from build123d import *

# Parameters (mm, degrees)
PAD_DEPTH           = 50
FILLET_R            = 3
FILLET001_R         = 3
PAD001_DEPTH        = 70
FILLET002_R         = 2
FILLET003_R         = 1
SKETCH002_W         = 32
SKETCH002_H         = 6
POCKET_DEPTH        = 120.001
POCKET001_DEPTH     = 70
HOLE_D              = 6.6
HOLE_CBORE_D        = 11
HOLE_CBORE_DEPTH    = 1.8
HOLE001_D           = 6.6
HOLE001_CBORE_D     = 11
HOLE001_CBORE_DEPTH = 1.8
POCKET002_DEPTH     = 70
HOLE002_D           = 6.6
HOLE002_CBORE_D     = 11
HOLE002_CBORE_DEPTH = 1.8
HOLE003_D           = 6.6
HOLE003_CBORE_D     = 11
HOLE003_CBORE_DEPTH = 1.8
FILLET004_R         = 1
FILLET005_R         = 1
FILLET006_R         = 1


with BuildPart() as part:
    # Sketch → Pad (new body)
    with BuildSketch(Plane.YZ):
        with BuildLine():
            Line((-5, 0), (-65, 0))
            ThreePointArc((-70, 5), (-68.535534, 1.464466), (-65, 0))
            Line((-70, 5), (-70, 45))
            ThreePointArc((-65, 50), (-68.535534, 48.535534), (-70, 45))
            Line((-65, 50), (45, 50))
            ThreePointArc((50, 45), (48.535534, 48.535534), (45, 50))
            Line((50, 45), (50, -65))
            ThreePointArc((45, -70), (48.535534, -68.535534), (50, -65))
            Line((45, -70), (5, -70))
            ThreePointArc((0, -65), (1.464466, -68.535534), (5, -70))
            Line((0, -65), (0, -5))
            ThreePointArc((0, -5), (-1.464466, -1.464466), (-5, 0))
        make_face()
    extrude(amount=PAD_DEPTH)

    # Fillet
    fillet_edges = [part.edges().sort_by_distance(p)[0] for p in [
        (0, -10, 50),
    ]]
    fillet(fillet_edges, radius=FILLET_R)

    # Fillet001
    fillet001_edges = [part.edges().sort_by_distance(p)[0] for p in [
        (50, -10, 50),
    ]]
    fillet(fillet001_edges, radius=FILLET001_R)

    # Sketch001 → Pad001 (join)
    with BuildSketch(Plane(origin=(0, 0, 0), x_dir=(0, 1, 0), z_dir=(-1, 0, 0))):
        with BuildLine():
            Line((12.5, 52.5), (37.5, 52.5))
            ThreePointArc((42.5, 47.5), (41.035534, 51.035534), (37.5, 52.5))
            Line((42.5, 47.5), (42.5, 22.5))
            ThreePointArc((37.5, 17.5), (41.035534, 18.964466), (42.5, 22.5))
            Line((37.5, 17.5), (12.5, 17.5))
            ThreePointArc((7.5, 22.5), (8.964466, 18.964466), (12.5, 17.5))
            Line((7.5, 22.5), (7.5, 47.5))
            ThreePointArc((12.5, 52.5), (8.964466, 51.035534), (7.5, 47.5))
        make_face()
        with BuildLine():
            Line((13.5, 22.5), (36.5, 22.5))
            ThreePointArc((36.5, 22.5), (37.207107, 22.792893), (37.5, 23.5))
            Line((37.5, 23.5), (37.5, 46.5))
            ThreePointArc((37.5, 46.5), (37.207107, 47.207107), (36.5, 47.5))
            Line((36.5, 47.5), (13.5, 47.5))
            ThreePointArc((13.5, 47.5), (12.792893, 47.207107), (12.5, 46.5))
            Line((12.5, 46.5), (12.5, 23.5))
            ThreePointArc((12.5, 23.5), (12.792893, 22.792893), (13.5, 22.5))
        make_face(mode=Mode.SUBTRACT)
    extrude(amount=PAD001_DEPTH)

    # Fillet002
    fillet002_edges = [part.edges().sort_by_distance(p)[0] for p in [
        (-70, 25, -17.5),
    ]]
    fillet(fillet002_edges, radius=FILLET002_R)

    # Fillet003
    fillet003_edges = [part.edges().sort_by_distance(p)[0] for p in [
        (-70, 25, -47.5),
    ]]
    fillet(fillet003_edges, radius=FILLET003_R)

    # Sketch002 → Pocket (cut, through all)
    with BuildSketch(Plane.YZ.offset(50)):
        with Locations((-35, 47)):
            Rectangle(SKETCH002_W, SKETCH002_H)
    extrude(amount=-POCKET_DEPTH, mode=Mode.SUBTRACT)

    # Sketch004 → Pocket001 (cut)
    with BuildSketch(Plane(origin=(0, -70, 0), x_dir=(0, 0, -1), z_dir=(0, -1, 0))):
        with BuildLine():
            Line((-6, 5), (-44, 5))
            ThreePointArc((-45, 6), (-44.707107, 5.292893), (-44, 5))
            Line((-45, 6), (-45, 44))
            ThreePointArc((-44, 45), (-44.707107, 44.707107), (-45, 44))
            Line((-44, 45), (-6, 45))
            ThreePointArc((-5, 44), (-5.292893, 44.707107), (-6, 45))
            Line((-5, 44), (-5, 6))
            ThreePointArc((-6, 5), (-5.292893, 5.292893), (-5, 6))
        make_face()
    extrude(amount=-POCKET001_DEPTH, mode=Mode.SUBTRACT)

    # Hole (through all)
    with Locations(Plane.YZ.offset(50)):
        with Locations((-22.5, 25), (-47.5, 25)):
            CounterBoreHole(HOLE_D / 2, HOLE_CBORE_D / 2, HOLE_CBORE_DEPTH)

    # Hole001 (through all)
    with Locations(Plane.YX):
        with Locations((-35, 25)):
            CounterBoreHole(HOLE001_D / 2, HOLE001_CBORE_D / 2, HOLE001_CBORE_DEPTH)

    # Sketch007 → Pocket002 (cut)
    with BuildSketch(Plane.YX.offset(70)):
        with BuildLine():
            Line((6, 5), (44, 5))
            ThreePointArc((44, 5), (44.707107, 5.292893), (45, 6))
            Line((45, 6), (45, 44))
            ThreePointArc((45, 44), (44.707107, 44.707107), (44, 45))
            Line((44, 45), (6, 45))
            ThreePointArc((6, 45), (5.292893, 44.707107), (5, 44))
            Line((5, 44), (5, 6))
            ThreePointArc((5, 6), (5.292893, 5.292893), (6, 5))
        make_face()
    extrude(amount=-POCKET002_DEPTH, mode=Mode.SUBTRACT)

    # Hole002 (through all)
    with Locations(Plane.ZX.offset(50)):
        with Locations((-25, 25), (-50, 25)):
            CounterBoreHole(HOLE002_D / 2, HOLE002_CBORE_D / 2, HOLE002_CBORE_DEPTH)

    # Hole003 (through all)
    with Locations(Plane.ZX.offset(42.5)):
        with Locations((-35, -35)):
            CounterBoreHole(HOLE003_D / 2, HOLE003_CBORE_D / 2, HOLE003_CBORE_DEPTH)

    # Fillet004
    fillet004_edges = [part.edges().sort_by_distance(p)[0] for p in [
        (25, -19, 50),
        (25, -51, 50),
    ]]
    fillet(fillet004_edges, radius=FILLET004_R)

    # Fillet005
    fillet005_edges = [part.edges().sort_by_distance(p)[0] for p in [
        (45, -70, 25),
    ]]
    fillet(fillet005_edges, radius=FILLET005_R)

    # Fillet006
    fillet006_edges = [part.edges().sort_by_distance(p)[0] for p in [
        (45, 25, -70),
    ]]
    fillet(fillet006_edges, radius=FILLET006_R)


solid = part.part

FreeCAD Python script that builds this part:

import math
import FreeCAD as App
import Part
import Sketcher


def edges_at(feature, points):
    """Names of the edges that pass closest to the given points."""
    edges = feature.Shape.Edges
    near = lambda p: min(range(len(edges)), key=lambda i: edges[i].distToShape(Part.Vertex(*p))[0])
    return sorted({f"Edge{near(p) + 1}" for p in points})

doc = App.newDocument("Part")
body = doc.addObject("PartDesign::Body", "Body")

# Sketch on YZ plane
sketch1 = body.newObject("Sketcher::SketchObject", "Sketch")
sketch1.AttachmentSupport = (doc.getObject("YZ_Plane"), [""])
sketch1.MapMode = "FlatFace"
sketch1.addGeometry([
    Part.LineSegment(App.Vector(-65, 0, 0), App.Vector(-5, 0, 0)),  # 0
    Part.ArcOfCircle(Part.Circle(App.Vector(-5, -5, 0), App.Vector(0, 0, 1), 5), math.radians(0), math.radians(90)),  # 1
    Part.LineSegment(App.Vector(0, -5, 0), App.Vector(0, -65, 0)),  # 2
    Part.ArcOfCircle(Part.Circle(App.Vector(5, -65, 0), App.Vector(0, 0, 1), 5), math.radians(180), math.radians(270)),  # 3
    Part.LineSegment(App.Vector(5, -70, 0), App.Vector(45, -70, 0)),  # 4
    Part.ArcOfCircle(Part.Circle(App.Vector(45, -65, 0), App.Vector(0, 0, 1), 5), math.radians(-90), math.radians(0)),  # 5
    Part.LineSegment(App.Vector(50, -65, 0), App.Vector(50, 45, 0)),  # 6
    Part.ArcOfCircle(Part.Circle(App.Vector(45, 45, 0), App.Vector(0, 0, 1), 5), math.radians(0), math.radians(90)),  # 7
    Part.LineSegment(App.Vector(45, 50, 0), App.Vector(-65, 50, 0)),  # 8
    Part.ArcOfCircle(Part.Circle(App.Vector(-65, 45, 0), App.Vector(0, 0, 1), 5), math.radians(90), math.radians(180)),  # 9
    Part.LineSegment(App.Vector(-70, 45, 0), App.Vector(-70, 5, 0)),  # 10
    Part.ArcOfCircle(Part.Circle(App.Vector(-65, 5, 0), App.Vector(0, 0, 1), 5), math.radians(180), math.radians(270)),  # 11
], False)
sketch1.addConstraint([
    Sketcher.Constraint("Tangent", 0, 2, 1, 2),
    Sketcher.Constraint("Tangent", 1, 1, 2, 1),
    Sketcher.Constraint("Tangent", 2, 2, 3, 1),
    Sketcher.Constraint("Tangent", 3, 2, 4, 1),
    Sketcher.Constraint("Tangent", 4, 2, 5, 1),
    Sketcher.Constraint("Tangent", 5, 2, 6, 1),
    Sketcher.Constraint("Tangent", 6, 2, 7, 1),
    Sketcher.Constraint("Tangent", 7, 2, 8, 1),
    Sketcher.Constraint("Tangent", 8, 2, 9, 1),
    Sketcher.Constraint("Tangent", 9, 2, 10, 1),
    Sketcher.Constraint("Tangent", 10, 2, 11, 1),
    Sketcher.Constraint("Tangent", 11, 2, 0, 1),
    Sketcher.Constraint("Horizontal", 0),
    Sketcher.Constraint("Vertical", 2),
    Sketcher.Constraint("Horizontal", 4),
    Sketcher.Constraint("Vertical", 6),
    Sketcher.Constraint("Horizontal", 8),
    Sketcher.Constraint("Vertical", 10),
    Sketcher.Constraint("Equal", 1, 3),
    Sketcher.Constraint("Equal", 3, 5),
    Sketcher.Constraint("Equal", 5, 7),
    Sketcher.Constraint("Equal", 7, 9),
    Sketcher.Constraint("Equal", 9, 11),
    Sketcher.Constraint("PointOnObject", 0, 2, -1),
    Sketcher.Constraint("PointOnObject", 1, 1, -2),
    Sketcher.Constraint("Equal", 0, 2),
    Sketcher.Constraint("Equal", 8, 6),
    Sketcher.Constraint("Radius", 1, 5.0),
    Sketcher.Constraint("DistanceX", 0, 1, 0, 2, 60.0),
    Sketcher.Constraint("DistanceX", 4, 1, 4, 2, 40.0),
])
pad1 = body.newObject("PartDesign::Pad", "Pad")
pad1.Profile = sketch1
pad1.Length = 50
doc.recompute()

fillet = body.newObject("PartDesign::Fillet", "Fillet")
fillet.Base = (pad1, edges_at(pad1, [(0, -10, 50)]))
fillet.Radius = 3
doc.recompute()

fillet2 = body.newObject("PartDesign::Fillet", "Fillet001")
fillet2.Base = (fillet, edges_at(fillet, [(50, -10, 50)]))
fillet2.Radius = 3

# Sketch on YZ plane
sketch2 = body.newObject("Sketcher::SketchObject", "Sketch001")
sketch2.AttachmentSupport = (doc.getObject("YZ_Plane"), [""])
sketch2.MapMode = "FlatFace"
sketch2.addGeometry([
    Part.LineSegment(App.Vector(37.5, -52.5, 0), App.Vector(12.5, -52.5, 0)),  # 0
    Part.ArcOfCircle(Part.Circle(App.Vector(12.5, -47.5, 0), App.Vector(0, 0, 1), 5), math.radians(180), math.radians(270)),  # 1
    Part.LineSegment(App.Vector(7.5, -47.5, 0), App.Vector(7.5, -22.5, 0)),  # 2
    Part.ArcOfCircle(Part.Circle(App.Vector(12.5, -22.5, 0), App.Vector(0, 0, 1), 5), math.radians(90), math.radians(180)),  # 3
    Part.LineSegment(App.Vector(12.5, -17.5, 0), App.Vector(37.5, -17.5, 0)),  # 4
    Part.ArcOfCircle(Part.Circle(App.Vector(37.5, -22.5, 0), App.Vector(0, 0, 1), 5), math.radians(0), math.radians(90)),  # 5
    Part.LineSegment(App.Vector(42.5, -22.5, 0), App.Vector(42.5, -47.5, 0)),  # 6
    Part.ArcOfCircle(Part.Circle(App.Vector(37.5, -47.5, 0), App.Vector(0, 0, 1), 5), math.radians(-90), math.radians(0)),  # 7
    Part.ArcOfCircle(Part.Circle(App.Vector(13.5, -23.5, 0), App.Vector(0, 0, 1), 1), math.radians(90), math.radians(180)),  # 8
    Part.LineSegment(App.Vector(12.5, -23.5, 0), App.Vector(12.5, -46.5, 0)),  # 9
    Part.ArcOfCircle(Part.Circle(App.Vector(13.5, -46.5, 0), App.Vector(0, 0, 1), 1), math.radians(180), math.radians(270)),  # 10
    Part.LineSegment(App.Vector(13.5, -47.5, 0), App.Vector(36.5, -47.5, 0)),  # 11
    Part.ArcOfCircle(Part.Circle(App.Vector(36.5, -46.5, 0), App.Vector(0, 0, 1), 1), math.radians(-90), math.radians(0)),  # 12
    Part.LineSegment(App.Vector(37.5, -46.5, 0), App.Vector(37.5, -23.5, 0)),  # 13
    Part.ArcOfCircle(Part.Circle(App.Vector(36.5, -23.5, 0), App.Vector(0, 0, 1), 1), math.radians(0), math.radians(90)),  # 14
    Part.LineSegment(App.Vector(36.5, -22.5, 0), App.Vector(13.5, -22.5, 0)),  # 15
], False)
sketch2.addConstraint([
    Sketcher.Constraint("Tangent", 0, 2, 1, 2),
    Sketcher.Constraint("Tangent", 1, 1, 2, 1),
    Sketcher.Constraint("Tangent", 2, 2, 3, 2),
    Sketcher.Constraint("Tangent", 3, 1, 4, 1),
    Sketcher.Constraint("Tangent", 4, 2, 5, 2),
    Sketcher.Constraint("Tangent", 5, 1, 6, 1),
    Sketcher.Constraint("Tangent", 6, 2, 7, 2),
    Sketcher.Constraint("Tangent", 7, 1, 0, 1),
    Sketcher.Constraint("Tangent", 8, 2, 9, 1),
    Sketcher.Constraint("Tangent", 9, 2, 10, 1),
    Sketcher.Constraint("Tangent", 10, 2, 11, 1),
    Sketcher.Constraint("Tangent", 11, 2, 12, 1),
    Sketcher.Constraint("Tangent", 12, 2, 13, 1),
    Sketcher.Constraint("Tangent", 13, 2, 14, 1),
    Sketcher.Constraint("Tangent", 14, 2, 15, 1),
    Sketcher.Constraint("Tangent", 15, 2, 8, 1),
    Sketcher.Constraint("Horizontal", 0),
    Sketcher.Constraint("Vertical", 2),
    Sketcher.Constraint("Horizontal", 4),
    Sketcher.Constraint("Vertical", 6),
    Sketcher.Constraint("Vertical", 9),
    Sketcher.Constraint("Horizontal", 11),
    Sketcher.Constraint("Vertical", 13),
    Sketcher.Constraint("Horizontal", 15),
    Sketcher.Constraint("Equal", 1, 3),
    Sketcher.Constraint("Equal", 3, 5),
    Sketcher.Constraint("Equal", 5, 7),
    Sketcher.Constraint("Equal", 8, 10),
    Sketcher.Constraint("Equal", 10, 12),
    Sketcher.Constraint("Equal", 12, 14),
    Sketcher.Constraint("Horizontal", 6, 2, 10, 2),
    Sketcher.Constraint("Horizontal", 5, 1, 14, 2),
    Sketcher.Constraint("Vertical", 3, 1, 8, 2),
    Sketcher.Constraint("Vertical", 7, 1, 12, 2),
    Sketcher.Constraint("Equal", 4, 2),
    Sketcher.Constraint("Radius", 1, 5.0),
    Sketcher.Constraint("Radius", 8, 0.999999),
    Sketcher.Constraint("DistanceX", 0, 2, 0, 1, 25.0),
    Sketcher.Constraint("DistanceX", -1, 1, 1, 3, 12.5),
    Sketcher.Constraint("DistanceY", 1, 3, -1, 1, 47.5),
])
pad2 = body.newObject("PartDesign::Pad", "Pad001")
pad2.Profile = sketch2
pad2.Length = 70
pad2.Reversed = True
doc.recompute()

fillet3 = body.newObject("PartDesign::Fillet", "Fillet002")
fillet3.Base = (pad2, edges_at(pad2, [(-70, 25, -17.5)]))
fillet3.Radius = 2
doc.recompute()

fillet4 = body.newObject("PartDesign::Fillet", "Fillet003")
fillet4.Base = (fillet3, edges_at(fillet3, [(-70, 25, -47.5)]))
fillet4.Radius = 1

# Sketch on YZ plane
sketch3 = body.newObject("Sketcher::SketchObject", "Sketch002")
sketch3.AttachmentSupport = (doc.getObject("YZ_Plane"), [""])
sketch3.MapMode = "FlatFace"
sketch3.AttachmentOffset = App.Placement(App.Vector(0, 0, 50), App.Rotation())
sketch3.addGeometry([
    Part.LineSegment(App.Vector(-51, 50, 0), App.Vector(-51, 44, 0)),
    Part.LineSegment(App.Vector(-51, 44, 0), App.Vector(-19, 44, 0)),
    Part.LineSegment(App.Vector(-19, 44, 0), App.Vector(-19, 50, 0)),
    Part.LineSegment(App.Vector(-19, 50, 0), App.Vector(-51, 50, 0)),
], False)
sketch3.addConstraint([
    Sketcher.Constraint("Coincident", 0, 2, 1, 1),
    Sketcher.Constraint("Coincident", 1, 2, 2, 1),
    Sketcher.Constraint("Coincident", 2, 2, 3, 1),
    Sketcher.Constraint("Coincident", 3, 2, 0, 1),
    Sketcher.Constraint("Vertical", 0),
    Sketcher.Constraint("Horizontal", 1),
    Sketcher.Constraint("Vertical", 2),
    Sketcher.Constraint("Horizontal", 3),
    Sketcher.Constraint("DistanceX", 1, 1, 1, 2, 32.0),
    Sketcher.Constraint("DistanceY", 0, 2, 0, 1, 6.0),
    Sketcher.Constraint("DistanceX", 0, 2, -1, 1, 51.0),
    Sketcher.Constraint("DistanceY", -1, 1, 0, 2, 44.0),
])
pocket1 = body.newObject("PartDesign::Pocket", "Pocket")
pocket1.Profile = sketch3
pocket1.Type = "ThroughAll"

# Sketch on XZ plane
sketch4 = body.newObject("Sketcher::SketchObject", "Sketch003")
sketch4.AttachmentSupport = (doc.getObject("XZ_Plane"), [""])
sketch4.MapMode = "FlatFace"
sketch4.AttachmentOffset = App.Placement(App.Vector(0, 0, 70), App.Rotation())
sketch4.addGeometry([
    Part.LineSegment(App.Vector(5, 44, 0), App.Vector(5, 6, 0)),  # 0
    Part.ArcOfCircle(Part.Circle(App.Vector(6, 6, 0), App.Vector(0, 0, 1), 1), math.radians(180), math.radians(270)),  # 1
    Part.LineSegment(App.Vector(6, 5, 0), App.Vector(44, 5, 0)),  # 2
    Part.ArcOfCircle(Part.Circle(App.Vector(44, 6, 0), App.Vector(0, 0, 1), 1), math.radians(-90), math.radians(0)),  # 3
    Part.LineSegment(App.Vector(45, 6, 0), App.Vector(45, 44, 0)),  # 4
    Part.ArcOfCircle(Part.Circle(App.Vector(44, 44, 0), App.Vector(0, 0, 1), 1), math.radians(0), math.radians(90)),  # 5
    Part.LineSegment(App.Vector(44, 45, 0), App.Vector(6, 45, 0)),  # 6
    Part.ArcOfCircle(Part.Circle(App.Vector(6, 44, 0), App.Vector(0, 0, 1), 1), math.radians(90), math.radians(180)),  # 7
], False)
sketch4.addConstraint([
    Sketcher.Constraint("Tangent", 0, 2, 1, 1),
    Sketcher.Constraint("Tangent", 1, 2, 2, 1),
    Sketcher.Constraint("Tangent", 2, 2, 3, 1),
    Sketcher.Constraint("Tangent", 3, 2, 4, 1),
    Sketcher.Constraint("Tangent", 4, 2, 5, 1),
    Sketcher.Constraint("Tangent", 5, 2, 6, 1),
    Sketcher.Constraint("Tangent", 6, 2, 7, 1),
    Sketcher.Constraint("Tangent", 7, 2, 0, 1),
    Sketcher.Constraint("Vertical", 0),
    Sketcher.Constraint("Horizontal", 2),
    Sketcher.Constraint("Vertical", 4),
    Sketcher.Constraint("Horizontal", 6),
    Sketcher.Constraint("Equal", 1, 3),
    Sketcher.Constraint("Equal", 3, 5),
    Sketcher.Constraint("Equal", 5, 7),
    Sketcher.Constraint("Equal", 6, 0),
    Sketcher.Constraint("Radius", 1, 0.999999),
    Sketcher.Constraint("DistanceX", 2, 1, 2, 2, 38.0),
    Sketcher.Constraint("DistanceX", -1, 1, 1, 3, 5.999999),
    Sketcher.Constraint("DistanceY", -1, 1, 1, 3, 5.999999),
])
pocket2 = body.newObject("PartDesign::Pocket", "Pocket001")
pocket2.Profile = sketch4
pocket2.Length = 70

# Sketch on YZ plane
sketch5 = body.newObject("Sketcher::SketchObject", "Sketch004")
sketch5.AttachmentSupport = (doc.getObject("YZ_Plane"), [""])
sketch5.MapMode = "FlatFace"
sketch5.AttachmentOffset = App.Placement(App.Vector(0, 0, 50), App.Rotation())
sketch5.addGeometry([
    Part.Circle(App.Vector(-22.5, 25, 0), App.Vector(0, 0, 1), 3.3),
    Part.Circle(App.Vector(-47.5, 25, 0), App.Vector(0, 0, 1), 3.3),
], False)
sketch5.addConstraint([
    Sketcher.Constraint("Equal", 0, 1),
    Sketcher.Constraint("Horizontal", 0, 3, 1, 3),
    Sketcher.Constraint("Diameter", 0, 6.6),
    Sketcher.Constraint("DistanceY", -1, 1, 0, 3, 25.0),
    Sketcher.Constraint("DistanceX", 1, 3, 0, 3, 25.0),
    Sketcher.Constraint("DistanceX", 0, 3, -1, 1, 22.5),
])
doc.recompute()
hole = body.newObject("PartDesign::Hole", "Hole")
hole.Profile = sketch5
hole.ThreadType = "None"
hole.Diameter = 6.6
hole.DepthType = "ThroughAll"
hole.HoleCutType = "Counterbore"
hole.HoleCutDiameter = 11
hole.HoleCutDepth = 1.8

# Sketch on XY plane
sketch6 = body.newObject("Sketcher::SketchObject", "Sketch005")
sketch6.AttachmentSupport = (doc.getObject("XY_Plane"), [""])
sketch6.MapMode = "FlatFace"
sketch6.addGeometry(Part.Circle(App.Vector(25, -35, 0), App.Vector(0, 0, 1), 3.3), False)
sketch6.addConstraint([
    Sketcher.Constraint("Diameter", 0, 6.6),
    Sketcher.Constraint("DistanceX", -1, 1, 0, 3, 25.0),
    Sketcher.Constraint("DistanceY", 0, 3, -1, 1, 35.0),
])
doc.recompute()
hole2 = body.newObject("PartDesign::Hole", "Hole001")
hole2.Profile = sketch6
hole2.ThreadType = "None"
hole2.Diameter = 6.6
hole2.DepthType = "ThroughAll"
hole2.HoleCutType = "Counterbore"
hole2.HoleCutDiameter = 11
hole2.HoleCutDepth = 1.8
hole2.Reversed = True

# Sketch on XY plane
sketch7 = body.newObject("Sketcher::SketchObject", "Sketch006")
sketch7.AttachmentSupport = (doc.getObject("XY_Plane"), [""])
sketch7.MapMode = "FlatFace"
sketch7.AttachmentOffset = App.Placement(App.Vector(0, 0, -70), App.Rotation())
sketch7.addGeometry([
    Part.LineSegment(App.Vector(5, 6, 0), App.Vector(5, 44, 0)),  # 0
    Part.ArcOfCircle(Part.Circle(App.Vector(6, 44, 0), App.Vector(0, 0, 1), 1), math.radians(90), math.radians(180)),  # 1
    Part.LineSegment(App.Vector(6, 45, 0), App.Vector(44, 45, 0)),  # 2
    Part.ArcOfCircle(Part.Circle(App.Vector(44, 44, 0), App.Vector(0, 0, 1), 1), math.radians(0), math.radians(90)),  # 3
    Part.LineSegment(App.Vector(45, 44, 0), App.Vector(45, 6, 0)),  # 4
    Part.ArcOfCircle(Part.Circle(App.Vector(44, 6, 0), App.Vector(0, 0, 1), 1), math.radians(-90), math.radians(0)),  # 5
    Part.LineSegment(App.Vector(44, 5, 0), App.Vector(6, 5, 0)),  # 6
    Part.ArcOfCircle(Part.Circle(App.Vector(6, 6, 0), App.Vector(0, 0, 1), 1), math.radians(180), math.radians(270)),  # 7
], False)
sketch7.addConstraint([
    Sketcher.Constraint("Tangent", 0, 2, 1, 2),
    Sketcher.Constraint("Tangent", 1, 1, 2, 1),
    Sketcher.Constraint("Tangent", 2, 2, 3, 2),
    Sketcher.Constraint("Tangent", 3, 1, 4, 1),
    Sketcher.Constraint("Tangent", 4, 2, 5, 2),
    Sketcher.Constraint("Tangent", 5, 1, 6, 1),
    Sketcher.Constraint("Tangent", 6, 2, 7, 2),
    Sketcher.Constraint("Tangent", 7, 1, 0, 1),
    Sketcher.Constraint("Vertical", 0),
    Sketcher.Constraint("Horizontal", 2),
    Sketcher.Constraint("Vertical", 4),
    Sketcher.Constraint("Horizontal", 6),
    Sketcher.Constraint("Equal", 1, 3),
    Sketcher.Constraint("Equal", 3, 5),
    Sketcher.Constraint("Equal", 5, 7),
    Sketcher.Constraint("Equal", 6, 0),
    Sketcher.Constraint("Radius", 1, 0.999999),
    Sketcher.Constraint("DistanceX", 2, 1, 2, 2, 38.0),
    Sketcher.Constraint("DistanceX", -1, 1, 1, 3, 5.999999),
    Sketcher.Constraint("DistanceY", -1, 1, 1, 3, 44.000001),
])
pocket3 = body.newObject("PartDesign::Pocket", "Pocket002")
pocket3.Profile = sketch7
pocket3.Length = 70
pocket3.Reversed = True

# Sketch on XZ plane
sketch8 = body.newObject("Sketcher::SketchObject", "Sketch007")
sketch8.AttachmentSupport = (doc.getObject("XZ_Plane"), [""])
sketch8.MapMode = "FlatFace"
sketch8.AttachmentOffset = App.Placement(App.Vector(0, 0, -50), App.Rotation())
sketch8.addGeometry([
    Part.Circle(App.Vector(25, -25, 0), App.Vector(0, 0, 1), 3.3),
    Part.Circle(App.Vector(25, -50, 0), App.Vector(0, 0, 1), 3.3),
], False)
sketch8.addConstraint([
    Sketcher.Constraint("Equal", 0, 1),
    Sketcher.Constraint("Vertical", 0, 3, 1, 3),
    Sketcher.Constraint("Diameter", 0, 6.6),
    Sketcher.Constraint("DistanceX", -1, 1, 0, 3, 25.0),
    Sketcher.Constraint("DistanceY", 0, 3, -1, 1, 25.0),
    Sketcher.Constraint("DistanceY", 1, 3, -1, 1, 50.0),
])
doc.recompute()
hole3 = body.newObject("PartDesign::Hole", "Hole002")
hole3.Profile = sketch8
hole3.ThreadType = "None"
hole3.Diameter = 6.6
hole3.DepthType = "ThroughAll"
hole3.HoleCutType = "Counterbore"
hole3.HoleCutDiameter = 11
hole3.HoleCutDepth = 1.8
hole3.Reversed = True

# Sketch on XZ plane
sketch9 = body.newObject("Sketcher::SketchObject", "Sketch008")
sketch9.AttachmentSupport = (doc.getObject("XZ_Plane"), [""])
sketch9.MapMode = "FlatFace"
sketch9.AttachmentOffset = App.Placement(App.Vector(0, 0, -42.5), App.Rotation())
sketch9.addGeometry(Part.Circle(App.Vector(-35, -35, 0), App.Vector(0, 0, 1), 3.3), False)
sketch9.addConstraint([
    Sketcher.Constraint("Diameter", 0, 6.6),
    Sketcher.Constraint("DistanceX", 0, 3, -1, 1, 35.0),
    Sketcher.Constraint("DistanceY", 0, 3, -1, 1, 35.0),
])
doc.recompute()
hole4 = body.newObject("PartDesign::Hole", "Hole003")
hole4.Profile = sketch9
hole4.ThreadType = "None"
hole4.Diameter = 6.6
hole4.DepthType = "ThroughAll"
hole4.HoleCutType = "Counterbore"
hole4.HoleCutDiameter = 11
hole4.HoleCutDepth = 1.8
hole4.Reversed = True
doc.recompute()

fillet5 = body.newObject("PartDesign::Fillet", "Fillet004")
fillet5.Base = (hole4, edges_at(hole4, [(25, -19, 50), (25, -51, 50)]))
fillet5.Radius = 1
doc.recompute()

fillet6 = body.newObject("PartDesign::Fillet", "Fillet005")
fillet6.Base = (fillet5, edges_at(fillet5, [(45, -70, 25)]))
fillet6.Radius = 1
doc.recompute()

fillet7 = body.newObject("PartDesign::Fillet", "Fillet006")
fillet7.Base = (fillet6, edges_at(fillet6, [(45, 25, -70)]))
fillet7.Radius = 1

doc.recompute()
